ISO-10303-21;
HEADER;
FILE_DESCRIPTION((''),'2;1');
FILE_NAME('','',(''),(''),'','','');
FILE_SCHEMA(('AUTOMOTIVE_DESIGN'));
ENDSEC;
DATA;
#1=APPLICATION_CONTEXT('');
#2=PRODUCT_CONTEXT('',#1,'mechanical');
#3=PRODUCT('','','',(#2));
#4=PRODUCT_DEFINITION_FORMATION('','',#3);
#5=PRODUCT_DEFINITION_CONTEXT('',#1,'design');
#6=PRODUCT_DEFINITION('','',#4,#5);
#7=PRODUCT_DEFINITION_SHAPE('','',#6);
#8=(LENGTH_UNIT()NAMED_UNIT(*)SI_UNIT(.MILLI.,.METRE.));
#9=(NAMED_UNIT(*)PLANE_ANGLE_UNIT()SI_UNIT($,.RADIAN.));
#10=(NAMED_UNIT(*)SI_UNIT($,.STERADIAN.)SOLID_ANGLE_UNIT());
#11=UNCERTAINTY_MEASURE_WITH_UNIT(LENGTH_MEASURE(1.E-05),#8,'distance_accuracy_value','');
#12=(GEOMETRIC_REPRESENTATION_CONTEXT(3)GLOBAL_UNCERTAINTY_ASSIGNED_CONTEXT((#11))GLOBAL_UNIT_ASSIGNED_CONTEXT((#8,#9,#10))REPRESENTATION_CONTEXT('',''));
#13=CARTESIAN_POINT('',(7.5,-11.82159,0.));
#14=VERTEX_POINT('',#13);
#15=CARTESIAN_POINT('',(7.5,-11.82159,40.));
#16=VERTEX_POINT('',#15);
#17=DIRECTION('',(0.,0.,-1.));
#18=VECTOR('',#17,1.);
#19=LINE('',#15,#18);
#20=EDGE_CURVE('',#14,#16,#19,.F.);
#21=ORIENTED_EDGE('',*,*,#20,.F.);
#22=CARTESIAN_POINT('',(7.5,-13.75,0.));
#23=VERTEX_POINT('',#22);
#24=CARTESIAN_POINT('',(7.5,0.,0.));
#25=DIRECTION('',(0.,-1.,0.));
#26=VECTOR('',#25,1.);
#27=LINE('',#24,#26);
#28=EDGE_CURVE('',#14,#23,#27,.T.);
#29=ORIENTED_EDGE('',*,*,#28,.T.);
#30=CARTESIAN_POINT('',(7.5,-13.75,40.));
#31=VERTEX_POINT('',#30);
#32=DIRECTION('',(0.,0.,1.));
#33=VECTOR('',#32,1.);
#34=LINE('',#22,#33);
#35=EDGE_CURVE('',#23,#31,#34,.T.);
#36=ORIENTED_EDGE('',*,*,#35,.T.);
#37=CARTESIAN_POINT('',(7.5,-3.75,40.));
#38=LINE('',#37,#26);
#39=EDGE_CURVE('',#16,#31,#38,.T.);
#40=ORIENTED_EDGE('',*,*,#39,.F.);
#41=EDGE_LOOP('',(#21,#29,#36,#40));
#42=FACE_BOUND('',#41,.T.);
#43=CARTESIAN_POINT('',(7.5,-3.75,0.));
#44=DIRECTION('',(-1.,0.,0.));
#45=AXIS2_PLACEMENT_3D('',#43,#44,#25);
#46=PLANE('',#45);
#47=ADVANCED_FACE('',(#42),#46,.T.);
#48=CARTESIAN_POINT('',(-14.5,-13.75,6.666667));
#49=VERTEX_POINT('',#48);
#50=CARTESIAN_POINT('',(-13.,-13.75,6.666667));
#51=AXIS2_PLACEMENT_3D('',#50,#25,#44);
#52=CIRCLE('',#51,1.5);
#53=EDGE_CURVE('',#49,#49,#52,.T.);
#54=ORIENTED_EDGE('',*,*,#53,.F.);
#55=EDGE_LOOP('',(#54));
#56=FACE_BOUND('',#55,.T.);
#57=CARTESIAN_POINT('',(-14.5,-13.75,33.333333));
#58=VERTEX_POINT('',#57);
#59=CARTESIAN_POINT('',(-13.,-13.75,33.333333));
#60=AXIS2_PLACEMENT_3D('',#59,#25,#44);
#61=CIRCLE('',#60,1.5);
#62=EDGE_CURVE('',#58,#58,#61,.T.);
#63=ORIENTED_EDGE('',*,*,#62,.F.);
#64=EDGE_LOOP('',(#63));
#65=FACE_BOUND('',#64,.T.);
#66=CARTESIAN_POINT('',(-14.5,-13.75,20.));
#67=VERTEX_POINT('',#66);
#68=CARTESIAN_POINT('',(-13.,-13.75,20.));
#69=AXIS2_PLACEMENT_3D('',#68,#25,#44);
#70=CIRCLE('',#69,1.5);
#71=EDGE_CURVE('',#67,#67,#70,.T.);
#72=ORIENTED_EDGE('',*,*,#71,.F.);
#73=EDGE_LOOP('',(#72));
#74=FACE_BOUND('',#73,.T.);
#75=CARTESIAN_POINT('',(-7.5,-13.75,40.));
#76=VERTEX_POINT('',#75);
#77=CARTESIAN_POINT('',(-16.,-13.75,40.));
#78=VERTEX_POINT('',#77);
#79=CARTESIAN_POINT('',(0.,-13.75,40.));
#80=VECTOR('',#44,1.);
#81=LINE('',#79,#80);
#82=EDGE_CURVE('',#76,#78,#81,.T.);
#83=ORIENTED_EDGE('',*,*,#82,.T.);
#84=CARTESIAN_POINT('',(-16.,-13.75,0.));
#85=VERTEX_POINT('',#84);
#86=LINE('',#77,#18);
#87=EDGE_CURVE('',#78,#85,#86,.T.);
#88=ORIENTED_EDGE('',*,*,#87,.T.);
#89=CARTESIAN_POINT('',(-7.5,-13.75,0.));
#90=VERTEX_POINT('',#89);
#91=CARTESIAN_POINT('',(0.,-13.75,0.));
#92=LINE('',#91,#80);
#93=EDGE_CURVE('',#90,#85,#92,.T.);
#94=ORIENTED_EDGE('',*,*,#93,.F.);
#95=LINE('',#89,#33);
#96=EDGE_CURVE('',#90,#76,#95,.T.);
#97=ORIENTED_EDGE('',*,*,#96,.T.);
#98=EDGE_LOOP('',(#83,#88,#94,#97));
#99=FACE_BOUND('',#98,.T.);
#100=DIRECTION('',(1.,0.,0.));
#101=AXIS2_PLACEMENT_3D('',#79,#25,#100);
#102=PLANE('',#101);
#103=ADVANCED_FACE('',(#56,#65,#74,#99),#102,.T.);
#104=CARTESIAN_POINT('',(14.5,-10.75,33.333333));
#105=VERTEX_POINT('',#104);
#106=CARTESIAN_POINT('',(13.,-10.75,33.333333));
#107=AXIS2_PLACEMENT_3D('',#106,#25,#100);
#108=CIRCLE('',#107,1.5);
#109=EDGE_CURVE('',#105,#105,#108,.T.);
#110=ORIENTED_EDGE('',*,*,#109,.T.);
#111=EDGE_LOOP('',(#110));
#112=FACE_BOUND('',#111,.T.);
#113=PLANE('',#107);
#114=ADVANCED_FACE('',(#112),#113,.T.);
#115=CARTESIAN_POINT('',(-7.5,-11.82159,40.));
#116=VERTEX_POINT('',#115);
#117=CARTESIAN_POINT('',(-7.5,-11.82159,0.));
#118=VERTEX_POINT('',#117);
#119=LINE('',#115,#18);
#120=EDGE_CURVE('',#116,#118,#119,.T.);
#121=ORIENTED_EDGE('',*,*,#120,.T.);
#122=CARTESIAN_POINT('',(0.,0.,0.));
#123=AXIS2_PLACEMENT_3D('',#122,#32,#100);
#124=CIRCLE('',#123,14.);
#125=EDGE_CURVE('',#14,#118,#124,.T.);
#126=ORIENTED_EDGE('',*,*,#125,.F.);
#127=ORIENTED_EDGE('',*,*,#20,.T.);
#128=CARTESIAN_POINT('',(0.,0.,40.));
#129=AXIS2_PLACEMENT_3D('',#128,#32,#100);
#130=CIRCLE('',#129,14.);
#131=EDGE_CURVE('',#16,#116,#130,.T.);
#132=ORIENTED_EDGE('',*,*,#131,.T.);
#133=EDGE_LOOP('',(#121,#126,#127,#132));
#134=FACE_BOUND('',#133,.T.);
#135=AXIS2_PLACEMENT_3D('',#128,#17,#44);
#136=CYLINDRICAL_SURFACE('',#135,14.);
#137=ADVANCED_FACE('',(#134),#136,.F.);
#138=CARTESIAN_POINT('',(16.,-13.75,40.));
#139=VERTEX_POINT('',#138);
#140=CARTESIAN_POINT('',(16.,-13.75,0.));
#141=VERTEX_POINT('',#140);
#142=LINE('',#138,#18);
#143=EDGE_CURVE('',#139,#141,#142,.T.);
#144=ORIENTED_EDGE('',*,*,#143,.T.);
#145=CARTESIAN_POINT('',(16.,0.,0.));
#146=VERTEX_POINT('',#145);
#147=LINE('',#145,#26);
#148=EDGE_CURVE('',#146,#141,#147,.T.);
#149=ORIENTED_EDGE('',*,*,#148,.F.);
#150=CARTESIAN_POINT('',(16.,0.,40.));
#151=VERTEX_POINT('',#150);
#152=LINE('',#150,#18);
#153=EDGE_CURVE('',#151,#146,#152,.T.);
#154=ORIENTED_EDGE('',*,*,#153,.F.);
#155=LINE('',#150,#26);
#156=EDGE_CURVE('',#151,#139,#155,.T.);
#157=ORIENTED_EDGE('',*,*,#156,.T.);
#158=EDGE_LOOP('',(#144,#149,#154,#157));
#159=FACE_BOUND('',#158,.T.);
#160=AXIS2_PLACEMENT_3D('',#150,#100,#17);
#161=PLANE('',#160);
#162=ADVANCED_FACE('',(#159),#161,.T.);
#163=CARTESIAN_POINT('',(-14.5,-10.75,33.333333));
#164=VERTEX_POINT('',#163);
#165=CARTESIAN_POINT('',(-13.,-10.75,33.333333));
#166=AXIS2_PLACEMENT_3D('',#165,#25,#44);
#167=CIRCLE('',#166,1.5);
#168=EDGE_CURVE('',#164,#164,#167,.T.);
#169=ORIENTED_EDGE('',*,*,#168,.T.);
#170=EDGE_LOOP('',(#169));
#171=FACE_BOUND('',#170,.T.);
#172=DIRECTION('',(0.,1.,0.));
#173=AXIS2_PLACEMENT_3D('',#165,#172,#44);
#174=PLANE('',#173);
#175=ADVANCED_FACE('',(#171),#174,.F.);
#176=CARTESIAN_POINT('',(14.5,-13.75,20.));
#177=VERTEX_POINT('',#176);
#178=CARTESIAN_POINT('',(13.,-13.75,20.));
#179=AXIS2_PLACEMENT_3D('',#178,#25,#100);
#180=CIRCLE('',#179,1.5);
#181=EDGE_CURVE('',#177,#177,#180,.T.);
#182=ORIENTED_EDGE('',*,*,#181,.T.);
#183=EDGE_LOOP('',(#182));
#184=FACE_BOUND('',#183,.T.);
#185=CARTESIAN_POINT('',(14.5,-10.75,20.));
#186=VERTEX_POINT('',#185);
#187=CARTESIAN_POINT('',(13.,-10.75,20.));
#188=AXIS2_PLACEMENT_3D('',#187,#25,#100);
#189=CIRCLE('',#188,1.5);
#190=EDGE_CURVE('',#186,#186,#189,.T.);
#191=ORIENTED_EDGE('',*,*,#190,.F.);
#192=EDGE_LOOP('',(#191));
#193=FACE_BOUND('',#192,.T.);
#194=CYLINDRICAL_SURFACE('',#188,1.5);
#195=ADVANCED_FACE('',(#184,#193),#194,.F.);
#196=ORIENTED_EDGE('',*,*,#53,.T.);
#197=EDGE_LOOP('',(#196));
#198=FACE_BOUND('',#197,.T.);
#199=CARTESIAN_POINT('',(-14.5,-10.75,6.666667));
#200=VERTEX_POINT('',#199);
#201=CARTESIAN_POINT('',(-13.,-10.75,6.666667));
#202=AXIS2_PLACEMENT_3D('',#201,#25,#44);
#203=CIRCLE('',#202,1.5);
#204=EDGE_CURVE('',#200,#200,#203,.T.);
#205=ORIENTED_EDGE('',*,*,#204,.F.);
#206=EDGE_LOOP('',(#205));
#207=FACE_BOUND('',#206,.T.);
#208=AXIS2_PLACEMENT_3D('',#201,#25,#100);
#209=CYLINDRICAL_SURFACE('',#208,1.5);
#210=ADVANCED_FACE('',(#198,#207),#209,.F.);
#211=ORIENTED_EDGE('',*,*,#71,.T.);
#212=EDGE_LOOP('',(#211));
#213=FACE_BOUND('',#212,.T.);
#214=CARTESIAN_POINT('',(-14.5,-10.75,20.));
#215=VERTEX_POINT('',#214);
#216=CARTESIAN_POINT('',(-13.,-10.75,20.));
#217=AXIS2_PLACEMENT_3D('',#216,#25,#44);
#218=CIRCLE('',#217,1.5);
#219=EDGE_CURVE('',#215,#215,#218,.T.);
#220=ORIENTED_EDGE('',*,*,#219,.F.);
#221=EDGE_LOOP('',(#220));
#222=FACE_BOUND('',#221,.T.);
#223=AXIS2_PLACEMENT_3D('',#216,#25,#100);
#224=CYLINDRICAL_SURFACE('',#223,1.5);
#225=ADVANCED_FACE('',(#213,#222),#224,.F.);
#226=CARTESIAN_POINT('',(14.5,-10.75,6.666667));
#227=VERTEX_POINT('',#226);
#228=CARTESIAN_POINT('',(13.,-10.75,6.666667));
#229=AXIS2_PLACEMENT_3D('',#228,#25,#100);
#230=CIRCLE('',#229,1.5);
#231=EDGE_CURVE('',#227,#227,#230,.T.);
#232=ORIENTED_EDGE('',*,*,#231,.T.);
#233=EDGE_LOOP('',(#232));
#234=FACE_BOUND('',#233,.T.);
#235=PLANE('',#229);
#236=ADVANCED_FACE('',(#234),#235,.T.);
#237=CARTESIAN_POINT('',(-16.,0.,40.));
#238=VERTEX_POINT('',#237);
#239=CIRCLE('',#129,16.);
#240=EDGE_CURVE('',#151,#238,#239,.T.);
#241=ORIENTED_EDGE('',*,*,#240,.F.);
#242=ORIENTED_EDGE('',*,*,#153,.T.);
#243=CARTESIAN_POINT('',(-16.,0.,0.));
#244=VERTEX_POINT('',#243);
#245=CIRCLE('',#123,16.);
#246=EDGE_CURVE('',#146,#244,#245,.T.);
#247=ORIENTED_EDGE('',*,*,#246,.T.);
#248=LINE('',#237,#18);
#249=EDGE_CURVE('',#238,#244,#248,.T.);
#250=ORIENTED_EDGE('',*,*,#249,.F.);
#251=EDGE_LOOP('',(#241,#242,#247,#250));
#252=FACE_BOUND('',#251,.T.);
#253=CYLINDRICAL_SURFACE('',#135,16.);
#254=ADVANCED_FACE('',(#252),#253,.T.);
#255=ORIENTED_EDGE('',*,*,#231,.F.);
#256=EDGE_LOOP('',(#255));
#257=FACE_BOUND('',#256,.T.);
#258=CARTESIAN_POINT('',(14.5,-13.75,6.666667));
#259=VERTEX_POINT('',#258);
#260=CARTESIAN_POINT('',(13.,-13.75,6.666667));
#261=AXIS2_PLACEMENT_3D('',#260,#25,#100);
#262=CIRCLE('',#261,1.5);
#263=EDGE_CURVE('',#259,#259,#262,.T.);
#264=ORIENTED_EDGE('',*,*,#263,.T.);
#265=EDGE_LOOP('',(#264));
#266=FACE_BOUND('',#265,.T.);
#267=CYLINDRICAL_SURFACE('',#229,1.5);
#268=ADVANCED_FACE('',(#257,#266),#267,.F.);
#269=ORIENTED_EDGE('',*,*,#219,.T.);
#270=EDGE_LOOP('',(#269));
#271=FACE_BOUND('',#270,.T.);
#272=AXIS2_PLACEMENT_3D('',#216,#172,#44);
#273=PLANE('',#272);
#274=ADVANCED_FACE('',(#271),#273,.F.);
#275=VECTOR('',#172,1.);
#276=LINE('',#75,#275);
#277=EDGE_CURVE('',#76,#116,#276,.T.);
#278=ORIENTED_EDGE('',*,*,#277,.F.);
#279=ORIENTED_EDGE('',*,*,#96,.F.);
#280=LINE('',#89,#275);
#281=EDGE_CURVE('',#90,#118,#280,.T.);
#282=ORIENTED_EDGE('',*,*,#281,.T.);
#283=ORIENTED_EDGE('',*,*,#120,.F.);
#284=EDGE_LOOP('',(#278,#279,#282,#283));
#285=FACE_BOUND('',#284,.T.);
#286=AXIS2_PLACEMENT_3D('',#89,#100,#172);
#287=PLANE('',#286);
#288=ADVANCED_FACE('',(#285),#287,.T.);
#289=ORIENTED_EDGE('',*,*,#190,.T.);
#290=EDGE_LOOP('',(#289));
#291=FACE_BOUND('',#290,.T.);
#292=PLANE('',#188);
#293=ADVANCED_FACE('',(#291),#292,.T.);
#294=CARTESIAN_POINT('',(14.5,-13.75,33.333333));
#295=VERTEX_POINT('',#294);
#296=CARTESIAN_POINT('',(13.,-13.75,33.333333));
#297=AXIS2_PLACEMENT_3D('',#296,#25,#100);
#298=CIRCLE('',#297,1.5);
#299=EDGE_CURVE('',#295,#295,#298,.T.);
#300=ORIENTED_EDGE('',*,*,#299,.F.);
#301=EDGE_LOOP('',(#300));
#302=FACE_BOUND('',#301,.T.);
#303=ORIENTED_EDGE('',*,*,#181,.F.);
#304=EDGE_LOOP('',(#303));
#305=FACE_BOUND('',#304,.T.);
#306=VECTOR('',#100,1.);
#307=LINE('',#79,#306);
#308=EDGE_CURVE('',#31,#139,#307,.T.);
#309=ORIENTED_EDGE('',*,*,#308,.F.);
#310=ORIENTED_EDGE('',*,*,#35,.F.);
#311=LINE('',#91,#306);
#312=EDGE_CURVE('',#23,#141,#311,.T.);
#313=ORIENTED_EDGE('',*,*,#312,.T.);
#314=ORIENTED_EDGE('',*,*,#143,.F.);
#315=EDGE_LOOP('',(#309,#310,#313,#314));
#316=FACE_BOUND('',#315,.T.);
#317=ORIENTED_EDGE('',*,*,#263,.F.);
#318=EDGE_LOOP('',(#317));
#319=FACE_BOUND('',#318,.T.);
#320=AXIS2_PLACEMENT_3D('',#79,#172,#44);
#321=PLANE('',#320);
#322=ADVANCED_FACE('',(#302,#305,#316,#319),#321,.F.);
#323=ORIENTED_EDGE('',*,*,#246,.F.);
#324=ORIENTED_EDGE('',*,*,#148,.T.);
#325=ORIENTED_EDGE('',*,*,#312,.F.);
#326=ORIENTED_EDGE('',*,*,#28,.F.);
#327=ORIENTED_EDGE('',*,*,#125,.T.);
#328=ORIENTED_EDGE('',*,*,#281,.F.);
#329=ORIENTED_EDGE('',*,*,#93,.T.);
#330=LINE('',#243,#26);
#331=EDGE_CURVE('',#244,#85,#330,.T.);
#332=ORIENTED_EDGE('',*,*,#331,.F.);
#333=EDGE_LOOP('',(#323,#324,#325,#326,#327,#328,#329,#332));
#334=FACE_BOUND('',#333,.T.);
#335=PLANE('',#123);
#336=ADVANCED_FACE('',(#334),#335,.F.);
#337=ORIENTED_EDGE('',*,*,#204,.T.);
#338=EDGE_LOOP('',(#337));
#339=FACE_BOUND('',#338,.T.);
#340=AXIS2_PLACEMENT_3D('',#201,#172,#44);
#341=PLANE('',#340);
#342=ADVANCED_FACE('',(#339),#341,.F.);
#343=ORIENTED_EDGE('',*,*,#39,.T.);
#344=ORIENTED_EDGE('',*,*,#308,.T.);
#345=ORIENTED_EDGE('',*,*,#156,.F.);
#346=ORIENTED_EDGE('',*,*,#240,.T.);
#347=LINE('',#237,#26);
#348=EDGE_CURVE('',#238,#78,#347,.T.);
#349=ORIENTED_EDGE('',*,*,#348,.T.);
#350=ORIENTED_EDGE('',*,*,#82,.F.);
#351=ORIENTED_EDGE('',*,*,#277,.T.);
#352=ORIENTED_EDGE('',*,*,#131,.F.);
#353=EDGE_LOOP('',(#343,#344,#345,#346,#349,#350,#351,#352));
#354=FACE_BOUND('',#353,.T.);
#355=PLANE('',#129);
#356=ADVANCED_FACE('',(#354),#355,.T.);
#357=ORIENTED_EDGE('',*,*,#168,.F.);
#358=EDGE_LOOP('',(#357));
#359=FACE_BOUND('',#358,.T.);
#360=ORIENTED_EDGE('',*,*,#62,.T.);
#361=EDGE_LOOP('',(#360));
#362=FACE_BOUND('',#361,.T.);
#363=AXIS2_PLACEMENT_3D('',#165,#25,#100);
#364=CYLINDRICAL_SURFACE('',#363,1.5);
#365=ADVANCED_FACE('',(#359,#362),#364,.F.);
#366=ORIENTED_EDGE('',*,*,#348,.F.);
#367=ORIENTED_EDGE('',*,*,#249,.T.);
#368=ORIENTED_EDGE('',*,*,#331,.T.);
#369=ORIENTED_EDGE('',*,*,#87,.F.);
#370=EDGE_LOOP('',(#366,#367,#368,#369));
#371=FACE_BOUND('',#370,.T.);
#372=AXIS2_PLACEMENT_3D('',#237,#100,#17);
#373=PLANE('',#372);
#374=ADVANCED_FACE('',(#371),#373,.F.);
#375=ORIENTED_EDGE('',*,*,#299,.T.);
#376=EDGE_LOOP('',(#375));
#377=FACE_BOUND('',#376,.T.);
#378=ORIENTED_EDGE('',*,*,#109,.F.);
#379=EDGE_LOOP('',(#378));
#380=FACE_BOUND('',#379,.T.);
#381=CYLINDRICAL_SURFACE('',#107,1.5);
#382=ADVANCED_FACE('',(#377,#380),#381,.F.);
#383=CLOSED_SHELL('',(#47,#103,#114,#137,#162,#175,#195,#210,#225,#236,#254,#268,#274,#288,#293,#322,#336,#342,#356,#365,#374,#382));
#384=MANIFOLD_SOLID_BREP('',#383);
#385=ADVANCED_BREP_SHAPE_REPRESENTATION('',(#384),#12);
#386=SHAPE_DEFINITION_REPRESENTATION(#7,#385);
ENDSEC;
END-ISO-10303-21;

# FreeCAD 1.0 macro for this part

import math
import FreeCAD as App
import Part
import Sketcher
from FreeCAD import Vector
Q = App.Units.Quantity


def add_polygon(sketch, points):
    """Adds a closed chain of lines whose ends are joined by coincident constraints."""
    first, n = sketch.GeometryCount, len(points)
    for a, b in zip(points, points[1:] + points[:1]):
        sketch.addGeometry(Part.LineSegment(App.Vector(*a, 0), App.Vector(*b, 0)), False)
    for i in range(n):
        sketch.addConstraint(Sketcher.Constraint("Coincident", first + i, 2, first + (i + 1) % n, 1))

doc = App.newDocument("Part")
body = doc.addObject("PartDesign::Body", "Body")

sketch1 = body.newObject("Sketcher::SketchObject", "Sketch")
sketch1.AttachmentSupport = (doc.getObject("XY_Plane"), [""])
sketch1.MapMode = "FlatFace"
sketch1.addGeometry(Part.LineSegment(Vector(-16, -14, 0), Vector(-3, -14, 0)), False)
sketch1.addGeometry(Part.ArcOfCircle(Part.Circle(Vector(0, 0, 0), Vector(0, 0, 1), 14), math.radians(-79), math.radians(259)), False)
sketch1.addGeometry(Part.LineSegment(Vector(3, -14, 0), Vector(16, -14, 0)), False)
sketch1.addGeometry(Part.LineSegment(Vector(16, -14, 0), Vector(16, 0, 0)), False)
sketch1.addGeometry(Part.ArcOfCircle(Part.Circle(Vector(0, 0, 0), Vector(0, 0, 1), 16), math.radians(0), math.radians(180)), False)
sketch1.addGeometry(Part.LineSegment(Vector(-16, 0, 0), Vector(-16, -14, 0)), False)
sketch1.addConstraint(Sketcher.Constraint("Coincident", 0, 2, 1, 2))
sketch1.addConstraint(Sketcher.Constraint("Coincident", 1, 1, 2, 1))
sketch1.addConstraint(Sketcher.Constraint("Coincident", 2, 2, 3, 1))
sketch1.addConstraint(Sketcher.Constraint("Tangent", 3, 2, 4, 1))
sketch1.addConstraint(Sketcher.Constraint("Tangent", 4, 2, 5, 1))
sketch1.addConstraint(Sketcher.Constraint("Coincident", 5, 2, 0, 1))
sketch1.addConstraint(Sketcher.Constraint("Horizontal", 0))
sketch1.addConstraint(Sketcher.Constraint("Horizontal", 2))
sketch1.addConstraint(Sketcher.Constraint("Vertical", 3))
sketch1.addConstraint(Sketcher.Constraint("Vertical", 5))
sketch1.addConstraint(Sketcher.Constraint("Coincident", 1, 3, -1, 1))
sketch1.addConstraint(Sketcher.Constraint("Coincident", 4, 3, -1, 1))
sketch1.addConstraint(Sketcher.Constraint("Horizontal", 0, 2, 1, 1))
sketch1.addConstraint(Sketcher.Constraint("Radius", 1, Q("14 mm")))
sketch1.addConstraint(Sketcher.Constraint("Radius", 4, Q("16 mm")))
sketch1.addConstraint(Sketcher.Constraint("DistanceY", 3, 1, 3, 2, Q("13.75 mm")))
pad1 = body.newObject("PartDesign::Pad", "Pad")
pad1.Profile = sketch1
pad1.Length = 40

sketch2 = body.newObject("Sketcher::SketchObject", "Sketch001")
sketch2.AttachmentSupport = (doc.getObject("XZ_Plane"), [""])
sketch2.MapMode = "FlatFace"
sketch2.AttachmentOffset = App.Placement(Vector(0, 0, 13.75), App.Rotation())
sketch2.addGeometry(Part.Circle(Vector(13, 33.3, 0), Vector(0, 0, 1), 1.5), False)
sketch2.addGeometry(Part.Circle(Vector(13, 20, 0), Vector(0, 0, 1), 1.5), False)
sketch2.addGeometry(Part.Circle(Vector(13, 6.7, 0), Vector(0, 0, 1), 1.5), False)
sketch2.addGeometry(Part.Circle(Vector(-13, 6.7, 0), Vector(0, 0, 1), 1.5), False)
sketch2.addGeometry(Part.Circle(Vector(-13, 20, 0), Vector(0, 0, 1), 1.5), False)
sketch2.addGeometry(Part.Circle(Vector(-13, 33.3, 0), Vector(0, 0, 1), 1.5), False)
sketch2.addConstraint(Sketcher.Constraint("Equal", 0, 1))
sketch2.addConstraint(Sketcher.Constraint("Equal", 1, 2))
sketch2.addConstraint(Sketcher.Constraint("Equal", 2, 3))
sketch2.addConstraint(Sketcher.Constraint("Equal", 3, 4))
sketch2.addConstraint(Sketcher.Constraint("Equal", 4, 5))
sketch2.addConstraint(Sketcher.Constraint("Symmetric", 2, 3, 3, 3, -2))
sketch2.addConstraint(Sketcher.Constraint("Symmetric", 1, 3, 4, 3, -2))
sketch2.addConstraint(Sketcher.Constraint("Symmetric", 0, 3, 5, 3, -2))
sketch2.addConstraint(Sketcher.Constraint("Vertical", 0, 3, 1, 3))
sketch2.addConstraint(Sketcher.Constraint("Vertical", 1, 3, 2, 3))
sketch2.addConstraint(Sketcher.Constraint("Diameter", 0, Q("3 mm")))
sketch2.addConstraint(Sketcher.Constraint("DistanceX", -1, 1, 0, 3, Q("13 mm")))
sketch2.addConstraint(Sketcher.Constraint("DistanceY", -1, 1, 1, 3, Q("20 mm")))
sketch2.addConstraint(Sketcher.Constraint("DistanceY", -1, 1, 0, 3, Q("33.333333 mm")))
sketch2.addConstraint(Sketcher.Constraint("DistanceY", -1, 1, 2, 3, Q("6.666667 mm")))
pocket1 = body.newObject("PartDesign::Pocket", "Pocket")
pocket1.Profile = sketch2
pocket1.Length = 3

sketch3 = body.newObject("Sketcher::SketchObject", "Sketch002")
sketch3.AttachmentSupport = (doc.getObject("XY_Plane"), [""])
sketch3.MapMode = "FlatFace"
sketch3.AttachmentOffset = App.Placement(Vector(0, 0, 40), App.Rotation())
add_polygon(sketch3, [(-8, -4), (-8, -14), (8, -14), (8, -4)])
sketch3.addConstraint(Sketcher.Constraint("Vertical", 0))
sketch3.addConstraint(Sketcher.Constraint("Horizontal", 1))
sketch3.addConstraint(Sketcher.Constraint("Vertical", 2))
sketch3.addConstraint(Sketcher.Constraint("Horizontal", 3))
sketch3.addConstraint(Sketcher.Constraint("DistanceX", 1, 1, 1, 2, Q("15 mm")))
sketch3.addConstraint(Sketcher.Constraint("DistanceY", 0, 2, 0, 1, Q("10 mm")))
sketch3.addConstraint(Sketcher.Constraint("DistanceX", 0, 2, -1, 1, Q("7.5 mm")))
sketch3.addConstraint(Sketcher.Constraint("DistanceY", 0, 2, -1, 1, Q("13.75 mm")))
pocket2 = body.newObject("PartDesign::Pocket", "Pocket001")
pocket2.Profile = sketch3
pocket2.Type = "ThroughAll"

doc.recompute()
